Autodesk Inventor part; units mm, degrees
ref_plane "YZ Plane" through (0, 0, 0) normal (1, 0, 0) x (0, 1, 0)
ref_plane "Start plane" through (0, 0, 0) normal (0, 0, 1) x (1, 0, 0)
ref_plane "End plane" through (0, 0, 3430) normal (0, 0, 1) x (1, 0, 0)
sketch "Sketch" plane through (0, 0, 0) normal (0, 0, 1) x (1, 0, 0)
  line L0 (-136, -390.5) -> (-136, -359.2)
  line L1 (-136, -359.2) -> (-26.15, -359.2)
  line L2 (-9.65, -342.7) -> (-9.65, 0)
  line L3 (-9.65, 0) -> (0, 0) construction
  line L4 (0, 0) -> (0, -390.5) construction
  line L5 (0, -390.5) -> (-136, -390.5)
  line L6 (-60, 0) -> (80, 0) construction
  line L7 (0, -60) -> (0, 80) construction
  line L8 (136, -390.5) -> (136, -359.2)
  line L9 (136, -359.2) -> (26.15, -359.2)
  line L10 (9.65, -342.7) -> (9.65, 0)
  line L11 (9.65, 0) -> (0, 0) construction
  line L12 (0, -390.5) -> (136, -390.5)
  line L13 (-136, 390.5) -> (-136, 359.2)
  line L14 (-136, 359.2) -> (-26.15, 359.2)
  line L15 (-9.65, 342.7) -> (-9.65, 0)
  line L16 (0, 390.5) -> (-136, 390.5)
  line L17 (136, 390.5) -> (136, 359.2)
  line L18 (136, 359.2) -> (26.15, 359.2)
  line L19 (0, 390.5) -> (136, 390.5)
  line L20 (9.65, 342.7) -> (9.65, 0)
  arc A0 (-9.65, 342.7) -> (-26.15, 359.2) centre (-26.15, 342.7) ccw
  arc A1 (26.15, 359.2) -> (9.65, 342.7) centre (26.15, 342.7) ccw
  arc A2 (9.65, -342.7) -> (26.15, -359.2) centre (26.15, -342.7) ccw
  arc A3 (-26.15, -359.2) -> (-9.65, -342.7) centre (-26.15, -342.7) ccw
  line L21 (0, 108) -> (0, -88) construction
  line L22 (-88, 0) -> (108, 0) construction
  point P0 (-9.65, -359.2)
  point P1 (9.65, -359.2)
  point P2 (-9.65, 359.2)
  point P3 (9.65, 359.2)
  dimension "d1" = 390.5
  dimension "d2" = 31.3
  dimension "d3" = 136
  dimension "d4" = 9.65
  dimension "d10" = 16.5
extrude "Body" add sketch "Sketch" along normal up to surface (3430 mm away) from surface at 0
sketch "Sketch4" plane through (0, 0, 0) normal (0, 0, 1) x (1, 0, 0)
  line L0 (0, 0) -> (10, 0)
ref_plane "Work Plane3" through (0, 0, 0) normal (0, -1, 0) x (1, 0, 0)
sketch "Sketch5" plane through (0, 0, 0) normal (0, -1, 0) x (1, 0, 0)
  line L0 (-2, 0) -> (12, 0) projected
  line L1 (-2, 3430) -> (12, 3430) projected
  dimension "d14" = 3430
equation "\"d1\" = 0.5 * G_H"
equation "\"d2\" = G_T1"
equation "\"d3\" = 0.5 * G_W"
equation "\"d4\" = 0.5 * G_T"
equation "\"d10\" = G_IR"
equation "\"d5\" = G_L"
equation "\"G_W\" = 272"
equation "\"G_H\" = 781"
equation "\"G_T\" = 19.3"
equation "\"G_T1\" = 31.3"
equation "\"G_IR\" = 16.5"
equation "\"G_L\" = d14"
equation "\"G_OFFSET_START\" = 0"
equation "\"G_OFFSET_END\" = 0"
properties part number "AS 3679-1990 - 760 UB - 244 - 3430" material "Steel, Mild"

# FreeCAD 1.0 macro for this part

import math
import FreeCAD as App
import Part
import Sketcher

V = App.Vector
Q = App.Units.Quantity

doc = App.newDocument("Part")
body = doc.addObject("PartDesign::Body", "Body")

# Sketch on XY plane
sketch1 = body.newObject("Sketcher::SketchObject", "Sketch")
sketch1.AttachmentSupport = (doc.getObject("XY_Plane"), [""])
sketch1.MapMode = "FlatFace"
sketch1.addGeometry([
    Part.LineSegment(V(-136, -359.2, 0), V(-136, -390.5, 0)),  # 0
    Part.LineSegment(V(-136, -390.5, 0), V(136, -390.5, 0)),  # 1
    Part.LineSegment(V(136, -390.5, 0), V(136, -359.2, 0)),  # 2
    Part.LineSegment(V(136, -359.2, 0), V(26.15, -359.2, 0)),  # 3
    Part.ArcOfCircle(Part.Circle(V(26.15, -342.7, 0), V(0, 0, 1), 16.5), math.radians(180), math.radians(270)),  # 4
    Part.LineSegment(V(9.65, -342.7, 0), V(9.65, 342.7, 0)),  # 5
    Part.ArcOfCircle(Part.Circle(V(26.15, 342.7, 0), V(0, 0, 1), 16.5), math.radians(90), math.radians(180)),  # 6
    Part.LineSegment(V(26.15, 359.2, 0), V(136, 359.2, 0)),  # 7
    Part.LineSegment(V(136, 359.2, 0), V(136, 390.5, 0)),  # 8
    Part.LineSegment(V(136, 390.5, 0), V(-136, 390.5, 0)),  # 9
    Part.LineSegment(V(-136, 390.5, 0), V(-136, 359.2, 0)),  # 10
    Part.LineSegment(V(-136, 359.2, 0), V(-26.15, 359.2, 0)),  # 11
    Part.ArcOfCircle(Part.Circle(V(-26.15, 342.7, 0), V(0, 0, 1), 16.5), math.radians(0), math.radians(90)),  # 12
    Part.LineSegment(V(-9.65, 342.7, 0), V(-9.65, -342.7, 0)),  # 13
    Part.ArcOfCircle(Part.Circle(V(-26.15, -342.7, 0), V(0, 0, 1), 16.5), math.radians(-90), math.radians(0)),  # 14
    Part.LineSegment(V(-26.15, -359.2, 0), V(-136, -359.2, 0)),  # 15
], False)
sketch1.addConstraint([
    Sketcher.Constraint("Coincident", 0, 2, 1, 1),
    Sketcher.Constraint("Coincident", 1, 2, 2, 1),
    Sketcher.Constraint("Coincident", 2, 2, 3, 1),
    Sketcher.Constraint("Tangent", 3, 2, 4, 2),
    Sketcher.Constraint("Tangent", 4, 1, 5, 1),
    Sketcher.Constraint("Tangent", 5, 2, 6, 2),
    Sketcher.Constraint("Tangent", 6, 1, 7, 1),
    Sketcher.Constraint("Coincident", 7, 2, 8, 1),
    Sketcher.Constraint("Coincident", 8, 2, 9, 1),
    Sketcher.Constraint("Coincident", 9, 2, 10, 1),
    Sketcher.Constraint("Coincident", 10, 2, 11, 1),
    Sketcher.Constraint("Tangent", 11, 2, 12, 2),
    Sketcher.Constraint("Tangent", 12, 1, 13, 1),
    Sketcher.Constraint("Tangent", 13, 2, 14, 2),
    Sketcher.Constraint("Tangent", 14, 1, 15, 1),
    Sketcher.Constraint("Coincident", 15, 2, 0, 1),
    Sketcher.Constraint("Vertical", 0),
    Sketcher.Constraint("Horizontal", 1),
    Sketcher.Constraint("Vertical", 2),
    Sketcher.Constraint("Horizontal", 3),
    Sketcher.Constraint("Vertical", 5),
    Sketcher.Constraint("Horizontal", 7),
    Sketcher.Constraint("Vertical", 8),
    Sketcher.Constraint("Horizontal", 9),
    Sketcher.Constraint("Vertical", 10),
    Sketcher.Constraint("Horizontal", 11),
    Sketcher.Constraint("Vertical", 13),
    Sketcher.Constraint("Horizontal", 15),
    Sketcher.Constraint("Equal", 4, 6),
    Sketcher.Constraint("Equal", 6, 12),
    Sketcher.Constraint("Equal", 12, 14),
    Sketcher.Constraint("Symmetric", 4, 3, 12, 3, -1, 1),
    Sketcher.Constraint("Symmetric", 0, 2, 8, 2, -1, 1),
    Sketcher.Constraint("Symmetric", 7, 2, 10, 2, -2),
    Sketcher.Constraint("Symmetric", 2, 2, 15, 2, -2),
    Sketcher.Constraint("Radius", 4, Q("16.5 mm")),
    Sketcher.Constraint("DistanceY", 0, 2, 0, 1, Q("31.3 mm")),
    Sketcher.Constraint("DistanceX", 0, 2, -1, 1, Q("136 mm")),
    Sketcher.Constraint("DistanceY", 0, 2, -1, 1, Q("390.5 mm")),
    Sketcher.Constraint("DistanceX", -1, 1, 4, 1, Q("9.65 mm")),
])
pad1 = body.newObject("PartDesign::Pad", "Pad")
pad1.Profile = sketch1
pad1.Length = 3430

doc.recompute()
